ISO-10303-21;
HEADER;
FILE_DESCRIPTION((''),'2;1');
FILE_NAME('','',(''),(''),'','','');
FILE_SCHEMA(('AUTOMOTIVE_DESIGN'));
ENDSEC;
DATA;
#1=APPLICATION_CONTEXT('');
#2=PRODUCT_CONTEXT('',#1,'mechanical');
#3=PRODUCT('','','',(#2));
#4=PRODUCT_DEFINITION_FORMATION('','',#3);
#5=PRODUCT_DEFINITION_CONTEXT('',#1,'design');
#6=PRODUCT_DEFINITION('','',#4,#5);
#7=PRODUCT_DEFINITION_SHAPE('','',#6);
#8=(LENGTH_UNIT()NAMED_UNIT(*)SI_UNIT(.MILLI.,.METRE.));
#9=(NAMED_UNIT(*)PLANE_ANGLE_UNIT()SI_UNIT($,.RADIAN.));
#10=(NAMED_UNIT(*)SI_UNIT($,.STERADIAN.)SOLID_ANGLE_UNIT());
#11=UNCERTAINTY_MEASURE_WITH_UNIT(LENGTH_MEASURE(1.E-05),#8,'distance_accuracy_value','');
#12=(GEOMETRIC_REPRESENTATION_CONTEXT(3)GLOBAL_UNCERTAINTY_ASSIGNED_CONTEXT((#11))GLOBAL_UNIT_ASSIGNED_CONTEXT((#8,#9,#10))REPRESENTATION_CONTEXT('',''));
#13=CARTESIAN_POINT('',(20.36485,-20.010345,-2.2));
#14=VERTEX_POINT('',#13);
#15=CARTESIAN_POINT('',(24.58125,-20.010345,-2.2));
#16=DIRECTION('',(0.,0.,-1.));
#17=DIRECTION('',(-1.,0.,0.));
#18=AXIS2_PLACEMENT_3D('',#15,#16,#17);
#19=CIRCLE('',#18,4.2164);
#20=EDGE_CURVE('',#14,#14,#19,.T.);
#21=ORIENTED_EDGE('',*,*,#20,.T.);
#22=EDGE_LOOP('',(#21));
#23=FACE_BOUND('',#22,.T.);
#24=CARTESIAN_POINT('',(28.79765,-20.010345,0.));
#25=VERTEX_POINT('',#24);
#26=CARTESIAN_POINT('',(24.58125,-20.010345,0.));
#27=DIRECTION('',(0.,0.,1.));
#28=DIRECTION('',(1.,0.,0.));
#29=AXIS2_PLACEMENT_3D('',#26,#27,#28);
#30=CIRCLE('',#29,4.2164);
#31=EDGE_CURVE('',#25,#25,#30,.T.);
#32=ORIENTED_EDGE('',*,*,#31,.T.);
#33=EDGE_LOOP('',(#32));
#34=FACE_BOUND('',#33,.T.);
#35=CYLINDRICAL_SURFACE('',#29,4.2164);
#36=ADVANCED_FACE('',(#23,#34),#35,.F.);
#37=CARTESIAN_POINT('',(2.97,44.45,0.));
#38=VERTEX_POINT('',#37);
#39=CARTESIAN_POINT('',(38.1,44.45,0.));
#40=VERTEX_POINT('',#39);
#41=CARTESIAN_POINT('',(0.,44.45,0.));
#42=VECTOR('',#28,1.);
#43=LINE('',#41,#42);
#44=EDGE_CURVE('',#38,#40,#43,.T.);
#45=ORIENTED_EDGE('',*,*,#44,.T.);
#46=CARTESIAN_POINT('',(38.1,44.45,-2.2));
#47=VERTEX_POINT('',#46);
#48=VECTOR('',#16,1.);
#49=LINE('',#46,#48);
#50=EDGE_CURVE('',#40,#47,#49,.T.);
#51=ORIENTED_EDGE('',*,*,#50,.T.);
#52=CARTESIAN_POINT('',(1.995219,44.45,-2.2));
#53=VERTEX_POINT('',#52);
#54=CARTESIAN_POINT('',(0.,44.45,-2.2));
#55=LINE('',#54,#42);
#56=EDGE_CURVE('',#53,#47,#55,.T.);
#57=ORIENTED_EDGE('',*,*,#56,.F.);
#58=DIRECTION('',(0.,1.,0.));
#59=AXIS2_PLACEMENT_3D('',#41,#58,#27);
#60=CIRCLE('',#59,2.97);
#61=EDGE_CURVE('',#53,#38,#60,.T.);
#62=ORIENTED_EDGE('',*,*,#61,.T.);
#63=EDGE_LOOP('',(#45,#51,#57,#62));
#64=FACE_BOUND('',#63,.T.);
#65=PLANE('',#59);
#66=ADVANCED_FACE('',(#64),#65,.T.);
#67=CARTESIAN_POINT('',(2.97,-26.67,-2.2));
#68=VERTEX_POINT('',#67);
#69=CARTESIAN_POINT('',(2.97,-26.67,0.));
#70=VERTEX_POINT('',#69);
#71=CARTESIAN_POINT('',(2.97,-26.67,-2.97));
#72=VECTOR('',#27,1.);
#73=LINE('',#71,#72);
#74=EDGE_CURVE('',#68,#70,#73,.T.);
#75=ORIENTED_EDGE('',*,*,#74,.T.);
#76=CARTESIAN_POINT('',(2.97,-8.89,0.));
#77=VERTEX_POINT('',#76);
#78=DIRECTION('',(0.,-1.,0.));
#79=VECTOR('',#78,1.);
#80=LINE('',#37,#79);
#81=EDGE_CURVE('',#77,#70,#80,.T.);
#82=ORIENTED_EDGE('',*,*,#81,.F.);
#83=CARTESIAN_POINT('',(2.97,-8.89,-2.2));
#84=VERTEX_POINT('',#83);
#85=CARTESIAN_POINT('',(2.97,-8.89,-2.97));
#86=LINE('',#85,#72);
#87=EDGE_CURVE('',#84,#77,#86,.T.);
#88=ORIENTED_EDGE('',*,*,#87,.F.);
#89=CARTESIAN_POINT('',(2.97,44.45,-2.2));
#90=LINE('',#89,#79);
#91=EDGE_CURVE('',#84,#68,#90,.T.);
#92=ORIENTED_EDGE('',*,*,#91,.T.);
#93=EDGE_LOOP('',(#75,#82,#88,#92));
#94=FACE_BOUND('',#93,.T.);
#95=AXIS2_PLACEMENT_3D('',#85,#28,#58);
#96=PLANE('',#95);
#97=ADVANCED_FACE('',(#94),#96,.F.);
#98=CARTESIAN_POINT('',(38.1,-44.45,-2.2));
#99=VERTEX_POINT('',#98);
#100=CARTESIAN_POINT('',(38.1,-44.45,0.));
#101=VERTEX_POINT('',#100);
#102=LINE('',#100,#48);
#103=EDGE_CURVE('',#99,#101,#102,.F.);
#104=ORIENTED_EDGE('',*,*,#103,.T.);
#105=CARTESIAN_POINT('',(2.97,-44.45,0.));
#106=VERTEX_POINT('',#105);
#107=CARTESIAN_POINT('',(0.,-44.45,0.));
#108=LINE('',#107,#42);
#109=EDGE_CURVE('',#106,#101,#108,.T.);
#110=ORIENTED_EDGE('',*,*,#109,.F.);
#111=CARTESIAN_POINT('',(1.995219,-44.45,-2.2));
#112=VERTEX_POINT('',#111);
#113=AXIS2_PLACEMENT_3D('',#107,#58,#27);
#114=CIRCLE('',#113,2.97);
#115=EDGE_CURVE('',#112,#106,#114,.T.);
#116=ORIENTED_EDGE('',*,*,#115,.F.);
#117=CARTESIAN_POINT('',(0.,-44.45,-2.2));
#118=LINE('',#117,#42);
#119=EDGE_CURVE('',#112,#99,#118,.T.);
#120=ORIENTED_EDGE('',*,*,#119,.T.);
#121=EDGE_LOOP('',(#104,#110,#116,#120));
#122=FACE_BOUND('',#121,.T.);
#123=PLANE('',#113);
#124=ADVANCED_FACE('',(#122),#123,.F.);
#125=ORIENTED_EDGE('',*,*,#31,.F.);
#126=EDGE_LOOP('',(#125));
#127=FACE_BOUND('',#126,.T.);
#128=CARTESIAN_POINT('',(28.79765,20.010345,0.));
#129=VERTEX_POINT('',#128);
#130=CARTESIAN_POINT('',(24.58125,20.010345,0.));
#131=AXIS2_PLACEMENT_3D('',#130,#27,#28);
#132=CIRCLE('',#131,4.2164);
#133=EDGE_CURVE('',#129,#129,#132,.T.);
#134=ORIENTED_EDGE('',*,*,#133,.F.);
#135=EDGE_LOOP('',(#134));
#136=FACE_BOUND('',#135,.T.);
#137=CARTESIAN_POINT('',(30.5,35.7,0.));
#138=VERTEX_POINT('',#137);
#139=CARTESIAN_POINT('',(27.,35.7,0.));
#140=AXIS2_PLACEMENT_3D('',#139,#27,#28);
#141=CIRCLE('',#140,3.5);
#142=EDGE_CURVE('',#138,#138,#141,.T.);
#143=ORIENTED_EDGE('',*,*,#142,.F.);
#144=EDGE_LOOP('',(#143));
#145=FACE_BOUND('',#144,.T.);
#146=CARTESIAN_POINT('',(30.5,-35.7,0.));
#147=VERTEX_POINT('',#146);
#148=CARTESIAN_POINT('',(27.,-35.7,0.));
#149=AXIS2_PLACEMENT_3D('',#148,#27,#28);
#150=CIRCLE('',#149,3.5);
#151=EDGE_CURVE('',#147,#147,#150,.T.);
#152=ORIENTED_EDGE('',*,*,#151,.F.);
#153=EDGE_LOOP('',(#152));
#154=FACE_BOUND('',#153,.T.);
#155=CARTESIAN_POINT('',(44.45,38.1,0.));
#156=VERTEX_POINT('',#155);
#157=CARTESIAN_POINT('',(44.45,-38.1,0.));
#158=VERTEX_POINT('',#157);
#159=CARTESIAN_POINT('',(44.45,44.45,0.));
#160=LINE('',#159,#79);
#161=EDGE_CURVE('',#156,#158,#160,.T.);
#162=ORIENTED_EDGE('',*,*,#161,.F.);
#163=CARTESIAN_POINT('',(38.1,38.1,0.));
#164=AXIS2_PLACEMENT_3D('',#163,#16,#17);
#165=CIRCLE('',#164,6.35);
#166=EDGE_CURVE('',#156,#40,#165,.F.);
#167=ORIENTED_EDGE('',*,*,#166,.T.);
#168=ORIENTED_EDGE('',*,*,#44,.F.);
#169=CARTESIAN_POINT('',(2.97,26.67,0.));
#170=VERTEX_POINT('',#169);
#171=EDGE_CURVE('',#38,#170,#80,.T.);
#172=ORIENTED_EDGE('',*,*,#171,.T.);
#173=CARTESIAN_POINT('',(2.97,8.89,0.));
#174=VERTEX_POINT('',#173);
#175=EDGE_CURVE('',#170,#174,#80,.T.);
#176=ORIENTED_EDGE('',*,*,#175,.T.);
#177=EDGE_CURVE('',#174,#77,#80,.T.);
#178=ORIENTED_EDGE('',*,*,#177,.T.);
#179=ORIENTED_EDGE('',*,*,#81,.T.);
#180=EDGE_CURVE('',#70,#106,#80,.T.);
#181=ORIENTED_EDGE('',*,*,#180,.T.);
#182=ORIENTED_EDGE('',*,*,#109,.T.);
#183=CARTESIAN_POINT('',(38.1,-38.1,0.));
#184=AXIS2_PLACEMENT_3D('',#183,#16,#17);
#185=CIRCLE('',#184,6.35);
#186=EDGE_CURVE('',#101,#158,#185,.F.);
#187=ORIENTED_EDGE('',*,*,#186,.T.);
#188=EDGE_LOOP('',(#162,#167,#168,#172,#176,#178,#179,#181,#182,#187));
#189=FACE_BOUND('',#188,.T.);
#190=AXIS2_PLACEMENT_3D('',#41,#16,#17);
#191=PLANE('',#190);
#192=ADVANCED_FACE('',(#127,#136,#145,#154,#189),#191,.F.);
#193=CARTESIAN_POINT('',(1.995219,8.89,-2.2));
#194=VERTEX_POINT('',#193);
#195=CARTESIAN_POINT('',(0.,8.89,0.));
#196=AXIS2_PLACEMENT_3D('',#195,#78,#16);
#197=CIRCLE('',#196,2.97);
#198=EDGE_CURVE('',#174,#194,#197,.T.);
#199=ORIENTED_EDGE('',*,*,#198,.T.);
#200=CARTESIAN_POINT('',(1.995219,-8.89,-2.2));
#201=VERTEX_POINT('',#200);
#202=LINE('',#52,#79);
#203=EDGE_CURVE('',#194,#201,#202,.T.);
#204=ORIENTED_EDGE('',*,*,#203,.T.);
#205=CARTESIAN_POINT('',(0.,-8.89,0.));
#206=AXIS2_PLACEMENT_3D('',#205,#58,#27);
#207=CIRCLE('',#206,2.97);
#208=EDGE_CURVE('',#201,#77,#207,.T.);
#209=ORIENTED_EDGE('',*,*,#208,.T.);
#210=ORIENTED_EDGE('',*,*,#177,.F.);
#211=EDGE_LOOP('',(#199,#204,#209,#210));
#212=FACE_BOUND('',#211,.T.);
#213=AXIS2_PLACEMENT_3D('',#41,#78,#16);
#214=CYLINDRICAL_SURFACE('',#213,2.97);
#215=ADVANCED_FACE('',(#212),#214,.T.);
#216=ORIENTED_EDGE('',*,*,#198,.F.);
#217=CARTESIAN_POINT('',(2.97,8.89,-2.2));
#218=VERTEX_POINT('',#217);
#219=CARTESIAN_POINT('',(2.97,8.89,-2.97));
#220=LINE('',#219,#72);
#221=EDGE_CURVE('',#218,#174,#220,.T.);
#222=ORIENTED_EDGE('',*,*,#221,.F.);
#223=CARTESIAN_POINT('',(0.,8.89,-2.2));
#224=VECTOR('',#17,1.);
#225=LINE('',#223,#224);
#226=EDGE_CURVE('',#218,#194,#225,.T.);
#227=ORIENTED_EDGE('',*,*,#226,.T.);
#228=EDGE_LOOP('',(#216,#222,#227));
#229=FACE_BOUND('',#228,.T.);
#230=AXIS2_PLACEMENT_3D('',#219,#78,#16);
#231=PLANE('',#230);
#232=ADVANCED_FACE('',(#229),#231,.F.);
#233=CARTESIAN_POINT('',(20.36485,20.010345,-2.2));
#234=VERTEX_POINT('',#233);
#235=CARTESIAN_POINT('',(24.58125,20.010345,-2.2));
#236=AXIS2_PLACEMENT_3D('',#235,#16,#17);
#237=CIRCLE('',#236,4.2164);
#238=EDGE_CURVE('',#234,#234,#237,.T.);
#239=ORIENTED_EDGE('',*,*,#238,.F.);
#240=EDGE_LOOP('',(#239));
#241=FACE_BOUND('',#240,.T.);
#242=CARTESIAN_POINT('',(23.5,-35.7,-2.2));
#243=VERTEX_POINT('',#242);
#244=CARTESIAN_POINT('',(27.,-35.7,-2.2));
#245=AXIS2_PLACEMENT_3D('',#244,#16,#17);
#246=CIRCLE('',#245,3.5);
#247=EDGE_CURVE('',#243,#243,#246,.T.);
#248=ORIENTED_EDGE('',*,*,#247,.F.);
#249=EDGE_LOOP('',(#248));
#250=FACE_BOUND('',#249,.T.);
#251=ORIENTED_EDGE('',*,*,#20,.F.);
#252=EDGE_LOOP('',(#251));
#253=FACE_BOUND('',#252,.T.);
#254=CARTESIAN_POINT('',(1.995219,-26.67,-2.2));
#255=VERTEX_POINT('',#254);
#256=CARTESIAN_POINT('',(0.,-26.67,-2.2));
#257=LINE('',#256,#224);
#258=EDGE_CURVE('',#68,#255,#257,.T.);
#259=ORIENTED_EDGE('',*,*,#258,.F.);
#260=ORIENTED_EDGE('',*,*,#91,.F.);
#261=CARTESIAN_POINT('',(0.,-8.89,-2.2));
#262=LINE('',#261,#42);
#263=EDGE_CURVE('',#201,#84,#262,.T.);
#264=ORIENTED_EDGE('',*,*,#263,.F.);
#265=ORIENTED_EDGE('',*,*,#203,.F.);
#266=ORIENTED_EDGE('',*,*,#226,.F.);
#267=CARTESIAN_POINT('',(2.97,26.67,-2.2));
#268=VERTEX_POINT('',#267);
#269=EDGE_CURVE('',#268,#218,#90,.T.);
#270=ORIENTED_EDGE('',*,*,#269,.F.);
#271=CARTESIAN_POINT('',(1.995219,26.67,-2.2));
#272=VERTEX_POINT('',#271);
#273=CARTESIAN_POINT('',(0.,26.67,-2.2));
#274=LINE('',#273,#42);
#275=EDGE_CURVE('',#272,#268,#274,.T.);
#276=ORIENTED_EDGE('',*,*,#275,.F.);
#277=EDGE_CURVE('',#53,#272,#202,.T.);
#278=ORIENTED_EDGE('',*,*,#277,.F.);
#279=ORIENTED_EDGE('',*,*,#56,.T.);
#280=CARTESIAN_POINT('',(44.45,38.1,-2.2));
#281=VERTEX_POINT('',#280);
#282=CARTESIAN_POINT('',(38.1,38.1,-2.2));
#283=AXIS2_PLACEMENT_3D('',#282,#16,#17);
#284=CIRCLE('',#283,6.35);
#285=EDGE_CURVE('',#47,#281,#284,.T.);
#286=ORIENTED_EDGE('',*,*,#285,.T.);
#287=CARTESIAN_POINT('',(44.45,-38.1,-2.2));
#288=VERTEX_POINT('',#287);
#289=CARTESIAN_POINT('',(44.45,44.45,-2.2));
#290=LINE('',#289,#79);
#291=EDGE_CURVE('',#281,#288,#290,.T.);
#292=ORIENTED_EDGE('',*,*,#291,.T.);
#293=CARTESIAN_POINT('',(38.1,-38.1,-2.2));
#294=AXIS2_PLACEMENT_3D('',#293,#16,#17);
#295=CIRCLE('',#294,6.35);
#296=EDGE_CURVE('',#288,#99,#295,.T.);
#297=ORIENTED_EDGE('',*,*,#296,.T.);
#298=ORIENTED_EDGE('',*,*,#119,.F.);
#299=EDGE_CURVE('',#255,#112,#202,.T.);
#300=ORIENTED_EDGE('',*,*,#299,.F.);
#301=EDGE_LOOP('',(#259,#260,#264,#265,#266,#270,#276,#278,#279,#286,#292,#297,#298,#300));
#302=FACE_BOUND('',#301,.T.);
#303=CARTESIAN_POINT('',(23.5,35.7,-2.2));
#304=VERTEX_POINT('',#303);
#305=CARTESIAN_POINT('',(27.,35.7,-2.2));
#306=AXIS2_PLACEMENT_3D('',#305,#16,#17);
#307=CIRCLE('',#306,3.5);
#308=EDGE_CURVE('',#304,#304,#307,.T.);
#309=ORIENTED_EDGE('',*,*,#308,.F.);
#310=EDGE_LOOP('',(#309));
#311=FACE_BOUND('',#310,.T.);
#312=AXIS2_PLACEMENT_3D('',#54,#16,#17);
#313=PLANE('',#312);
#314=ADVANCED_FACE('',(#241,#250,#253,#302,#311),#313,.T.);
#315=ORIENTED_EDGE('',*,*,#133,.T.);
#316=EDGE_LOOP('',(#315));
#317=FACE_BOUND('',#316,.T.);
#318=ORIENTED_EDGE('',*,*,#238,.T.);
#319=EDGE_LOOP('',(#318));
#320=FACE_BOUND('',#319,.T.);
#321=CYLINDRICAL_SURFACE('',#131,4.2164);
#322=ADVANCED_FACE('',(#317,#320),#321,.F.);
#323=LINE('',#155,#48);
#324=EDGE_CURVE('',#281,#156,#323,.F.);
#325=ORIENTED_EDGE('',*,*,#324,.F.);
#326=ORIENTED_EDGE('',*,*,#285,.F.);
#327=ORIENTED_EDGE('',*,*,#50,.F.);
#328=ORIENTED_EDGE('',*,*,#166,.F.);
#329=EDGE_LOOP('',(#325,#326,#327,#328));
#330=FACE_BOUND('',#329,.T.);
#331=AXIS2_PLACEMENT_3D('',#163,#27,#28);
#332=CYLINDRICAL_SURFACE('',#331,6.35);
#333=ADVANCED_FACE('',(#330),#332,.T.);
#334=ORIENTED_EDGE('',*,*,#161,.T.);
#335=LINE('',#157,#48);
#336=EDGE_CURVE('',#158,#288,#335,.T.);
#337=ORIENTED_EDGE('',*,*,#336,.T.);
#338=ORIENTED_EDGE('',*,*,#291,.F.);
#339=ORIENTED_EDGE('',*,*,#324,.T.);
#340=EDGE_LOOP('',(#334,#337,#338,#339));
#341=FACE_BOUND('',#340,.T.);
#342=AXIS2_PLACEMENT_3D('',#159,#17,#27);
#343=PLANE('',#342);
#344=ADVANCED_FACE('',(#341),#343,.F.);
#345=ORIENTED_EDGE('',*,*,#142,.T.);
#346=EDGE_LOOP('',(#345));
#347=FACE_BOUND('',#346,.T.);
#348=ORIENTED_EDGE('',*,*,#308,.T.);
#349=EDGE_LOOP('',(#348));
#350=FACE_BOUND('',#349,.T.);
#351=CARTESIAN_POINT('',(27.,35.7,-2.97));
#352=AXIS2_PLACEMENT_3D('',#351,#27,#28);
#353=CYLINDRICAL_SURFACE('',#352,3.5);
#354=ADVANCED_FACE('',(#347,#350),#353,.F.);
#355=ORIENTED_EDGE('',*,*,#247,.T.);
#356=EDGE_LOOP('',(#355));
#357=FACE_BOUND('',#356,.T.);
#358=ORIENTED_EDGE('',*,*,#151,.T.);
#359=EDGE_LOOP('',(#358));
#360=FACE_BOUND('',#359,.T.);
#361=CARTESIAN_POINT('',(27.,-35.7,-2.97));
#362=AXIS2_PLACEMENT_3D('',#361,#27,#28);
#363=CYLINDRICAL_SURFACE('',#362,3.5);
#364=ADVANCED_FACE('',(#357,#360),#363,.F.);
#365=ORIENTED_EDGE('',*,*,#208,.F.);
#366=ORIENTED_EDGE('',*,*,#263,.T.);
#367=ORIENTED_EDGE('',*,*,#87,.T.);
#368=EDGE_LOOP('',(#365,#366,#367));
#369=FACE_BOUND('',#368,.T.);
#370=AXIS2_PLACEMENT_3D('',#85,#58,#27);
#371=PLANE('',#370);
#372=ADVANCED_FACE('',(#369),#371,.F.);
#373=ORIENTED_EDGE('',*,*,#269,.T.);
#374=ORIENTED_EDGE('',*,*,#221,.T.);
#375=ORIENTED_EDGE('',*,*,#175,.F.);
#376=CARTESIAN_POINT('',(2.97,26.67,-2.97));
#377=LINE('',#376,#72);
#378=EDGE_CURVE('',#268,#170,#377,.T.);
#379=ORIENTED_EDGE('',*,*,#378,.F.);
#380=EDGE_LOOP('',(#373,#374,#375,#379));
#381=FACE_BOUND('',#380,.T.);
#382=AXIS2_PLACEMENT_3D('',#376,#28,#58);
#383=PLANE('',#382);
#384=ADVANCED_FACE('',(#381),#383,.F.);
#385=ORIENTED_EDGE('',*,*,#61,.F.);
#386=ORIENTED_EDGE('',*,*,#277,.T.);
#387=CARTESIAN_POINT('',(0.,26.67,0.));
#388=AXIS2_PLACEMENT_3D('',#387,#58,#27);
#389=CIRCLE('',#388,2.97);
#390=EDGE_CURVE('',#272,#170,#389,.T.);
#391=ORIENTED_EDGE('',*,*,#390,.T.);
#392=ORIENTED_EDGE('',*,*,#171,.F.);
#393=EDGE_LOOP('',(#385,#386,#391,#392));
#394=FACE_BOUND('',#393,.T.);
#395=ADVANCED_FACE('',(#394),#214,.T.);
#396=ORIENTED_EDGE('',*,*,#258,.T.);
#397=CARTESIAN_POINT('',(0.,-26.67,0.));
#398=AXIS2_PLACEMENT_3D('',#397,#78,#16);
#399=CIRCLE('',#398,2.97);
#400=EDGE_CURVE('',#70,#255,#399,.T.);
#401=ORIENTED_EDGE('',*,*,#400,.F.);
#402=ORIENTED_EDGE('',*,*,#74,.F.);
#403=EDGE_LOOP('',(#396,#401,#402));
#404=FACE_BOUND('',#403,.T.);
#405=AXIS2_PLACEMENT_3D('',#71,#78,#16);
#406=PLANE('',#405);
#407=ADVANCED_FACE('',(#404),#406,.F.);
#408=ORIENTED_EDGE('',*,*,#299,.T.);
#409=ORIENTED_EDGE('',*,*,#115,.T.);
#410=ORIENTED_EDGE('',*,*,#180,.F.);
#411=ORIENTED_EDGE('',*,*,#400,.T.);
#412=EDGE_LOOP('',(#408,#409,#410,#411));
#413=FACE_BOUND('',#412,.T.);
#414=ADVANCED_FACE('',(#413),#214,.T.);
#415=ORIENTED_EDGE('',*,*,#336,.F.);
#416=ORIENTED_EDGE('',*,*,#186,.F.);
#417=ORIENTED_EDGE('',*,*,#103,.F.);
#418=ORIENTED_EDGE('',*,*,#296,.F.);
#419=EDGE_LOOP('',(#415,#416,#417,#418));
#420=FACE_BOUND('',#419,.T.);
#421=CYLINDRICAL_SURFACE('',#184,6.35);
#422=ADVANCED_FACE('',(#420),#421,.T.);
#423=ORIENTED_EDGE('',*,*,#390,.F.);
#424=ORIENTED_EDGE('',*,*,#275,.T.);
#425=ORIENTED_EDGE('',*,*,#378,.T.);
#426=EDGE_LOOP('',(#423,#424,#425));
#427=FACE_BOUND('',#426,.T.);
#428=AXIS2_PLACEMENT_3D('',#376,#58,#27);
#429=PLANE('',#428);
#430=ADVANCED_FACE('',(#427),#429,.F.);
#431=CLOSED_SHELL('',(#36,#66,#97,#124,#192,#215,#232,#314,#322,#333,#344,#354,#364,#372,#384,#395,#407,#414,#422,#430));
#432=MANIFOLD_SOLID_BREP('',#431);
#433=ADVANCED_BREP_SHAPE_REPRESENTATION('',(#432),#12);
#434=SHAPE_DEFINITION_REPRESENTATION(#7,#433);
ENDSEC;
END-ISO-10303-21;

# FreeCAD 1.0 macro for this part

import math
import FreeCAD as App
import Part
import Sketcher
from FreeCAD import Vector
Q = App.Units.Quantity


def edges_at(feature, points):
    """Names of the edges that pass closest to the given points."""
    edges = feature.Shape.Edges
    near = lambda p: min(range(len(edges)), key=lambda i: edges[i].distToShape(Part.Vertex(*p))[0])
    return sorted({f"Edge{near(p) + 1}" for p in points})


def add_polygon(sketch, points):
    """Adds a closed chain of lines whose ends are joined by coincident constraints."""
    first, n = sketch.GeometryCount, len(points)
    for a, b in zip(points, points[1:] + points[:1]):
        sketch.addGeometry(Part.LineSegment(App.Vector(*a, 0), App.Vector(*b, 0)), False)
    for i in range(n):
        sketch.addConstraint(Sketcher.Constraint("Coincident", first + i, 2, first + (i + 1) % n, 1))

doc = App.newDocument("Part")
body = doc.addObject("PartDesign::Body", "Body")

# Sketch on XZ plane
sketch1 = doc.addObject("Sketcher::SketchObject", "Sketch")
body.addObject(sketch1)
sketch1.AttachmentSupport = (doc.XZ_Plane, [""])
sketch1.MapMode = "FlatFace"
sketch1.addGeometry([
    Part.ArcOfCircle(Part.Circle(Vector(0, 0, 0), Vector(0, 0, 1), 3), math.radians(0), math.radians(312)),
    Part.LineSegment(Vector(3, 0, 0), Vector(44.5, 0, 0)),
    Part.LineSegment(Vector(44.5, 0, 0), Vector(44.5, -2.2, 0)),
    Part.LineSegment(Vector(44.5, -2.2, 0), Vector(2, -2.2, 0)),
], False)
sketch1.addConstraint([
    Sketcher.Constraint("Coincident", 0, 1, 1, 1),
    Sketcher.Constraint("Coincident", 1, 2, 2, 1),
    Sketcher.Constraint("Coincident", 2, 2, 3, 1),
    Sketcher.Constraint("Coincident", 3, 2, 0, 2),
    Sketcher.Constraint("Horizontal", 1),
    Sketcher.Constraint("Vertical", 2),
    Sketcher.Constraint("Horizontal", 3),
    Sketcher.Constraint("Coincident", 0, 3, -1, 1),
    Sketcher.Constraint("PointOnObject", 0, 1, -1),
    Sketcher.Constraint("DistanceX", -1, 1, 1, 2, Q("1.75 in")),
    Sketcher.Constraint("Radius", 0, Q("2.97 mm")),
    Sketcher.Constraint("DistanceY", 2, 2, 2, 1, Q("2.2 mm")),
])
pad1 = doc.addObject("PartDesign::Pad", "Pad")
body.addObject(pad1)
pad1.Profile = sketch1
pad1.Length = Q("3.5 in")
pad1.Midplane = True

# Sketch on XY plane
sketch2 = doc.addObject("Sketcher::SketchObject", "Sketch001")
body.addObject(sketch2)
sketch2.AttachmentSupport = (doc.XY_Plane, [""])
sketch2.MapMode = "FlatFace"
add_polygon(sketch2, [(-3, 27), (-3, 9), (3, 9), (3, 27)])  # lines 0-3
add_polygon(sketch2, [(-3, -9), (-3, -27), (3, -27), (3, -9)])  # lines 4-7
sketch2.addConstraint([
    Sketcher.Constraint("Vertical", 0),
    Sketcher.Constraint("Horizontal", 1),
    Sketcher.Constraint("Vertical", 2),
    Sketcher.Constraint("Horizontal", 3),
    Sketcher.Constraint("Vertical", 4),
    Sketcher.Constraint("Horizontal", 5),
    Sketcher.Constraint("Vertical", 6),
    Sketcher.Constraint("Horizontal", 7),
    Sketcher.Constraint("Symmetric", 2, 2, 4, 2, -1, 1),
    Sketcher.Constraint("Symmetric", 0, 2, 6, 2, -1, 1),
    Sketcher.Constraint("Vertical", 3, 2, 4, 2),
    Sketcher.Constraint("DistanceY", 0, 2, 0, 1, Q("0.7 in")),
    Sketcher.Constraint("DistanceY", 4, 2, 0, 2, Q("1.4 in")),
    Sketcher.Constraint("DistanceX", 1, 1, 1, 2, Q("5.94 mm")),
])
pocket1 = doc.addObject("PartDesign::Pocket", "Pocket")
body.addObject(pocket1)
pocket1.Profile = sketch2
pocket1.Type = "ThroughAll"
pocket1.Midplane = True
doc.recompute()

fillet = doc.addObject("PartDesign::Fillet", "Fillet")
body.addObject(fillet)
fillet.Base = (pocket1, edges_at(pocket1, [(44.45, 44.45, -1.1), (44.45, -44.45, -1.1)]))
fillet.Radius = Q("0.25 in")

# Sketch on XY plane
sketch3 = doc.addObject("Sketcher::SketchObject", "Sketch002")
body.addObject(sketch3)
sketch3.AttachmentSupport = (doc.XY_Plane, [""])
sketch3.MapMode = "FlatFace"
sketch3.addGeometry([
    Part.Circle(Vector(27, 35.7, 0), Vector(0, 0, 1), 3.5),
    Part.Circle(Vector(27, -35.7, 0), Vector(0, 0, 1), 3.5),
], False)
sketch3.addConstraint([
    Sketcher.Constraint("Equal", 0, 1),
    Sketcher.Constraint("Symmetric", 0, 3, 1, 3, -1),
    Sketcher.Constraint("Diameter", 0, Q("7 mm")),
    Sketcher.Constraint("DistanceX", -1, 1, 0, 3, Q("27 mm")),
    Sketcher.Constraint("DistanceY", -1, 1, 0, 3, Q("35.7 mm")),
])
pocket2 = doc.addObject("PartDesign::Pocket", "Pocket001")
body.addObject(pocket2)
pocket2.Profile = sketch3
pocket2.Type = "ThroughAll"

# Sketch on XY plane
sketch4 = doc.addObject("Sketcher::SketchObject", "Sketch003")
body.addObject(sketch4)
sketch4.AttachmentSupport = (doc.XY_Plane, [""])
sketch4.MapMode = "FlatFace"
sketch4.addGeometry([
    Part.Circle(Vector(24.6, 20, 0), Vector(0, 0, 1), 4.2),
    Part.Circle(Vector(24.6, -20, 0), Vector(0, 0, 1), 4.2),
], False)
sketch4.addConstraint([
    Sketcher.Constraint("Equal", 0, 1),
    Sketcher.Constraint("Symmetric", 0, 3, 1, 3, -1),
    Sketcher.Constraint("Diameter", 0, Q("0.332 in")),
    Sketcher.Constraint("DistanceX", -1, 1, 0, 3, Q("24.58125 mm")),
    Sketcher.Constraint("DistanceY", 1, 3, 0, 3, Q("40.02069 mm")),
])
doc.recompute()
hole = doc.addObject("PartDesign::Hole", "Hole")
body.addObject(hole)
hole.Profile = sketch4
hole.ThreadType = "None"
hole.Diameter = Q("0.332 in")
hole.DepthType = "ThroughAll"

doc.recompute()
